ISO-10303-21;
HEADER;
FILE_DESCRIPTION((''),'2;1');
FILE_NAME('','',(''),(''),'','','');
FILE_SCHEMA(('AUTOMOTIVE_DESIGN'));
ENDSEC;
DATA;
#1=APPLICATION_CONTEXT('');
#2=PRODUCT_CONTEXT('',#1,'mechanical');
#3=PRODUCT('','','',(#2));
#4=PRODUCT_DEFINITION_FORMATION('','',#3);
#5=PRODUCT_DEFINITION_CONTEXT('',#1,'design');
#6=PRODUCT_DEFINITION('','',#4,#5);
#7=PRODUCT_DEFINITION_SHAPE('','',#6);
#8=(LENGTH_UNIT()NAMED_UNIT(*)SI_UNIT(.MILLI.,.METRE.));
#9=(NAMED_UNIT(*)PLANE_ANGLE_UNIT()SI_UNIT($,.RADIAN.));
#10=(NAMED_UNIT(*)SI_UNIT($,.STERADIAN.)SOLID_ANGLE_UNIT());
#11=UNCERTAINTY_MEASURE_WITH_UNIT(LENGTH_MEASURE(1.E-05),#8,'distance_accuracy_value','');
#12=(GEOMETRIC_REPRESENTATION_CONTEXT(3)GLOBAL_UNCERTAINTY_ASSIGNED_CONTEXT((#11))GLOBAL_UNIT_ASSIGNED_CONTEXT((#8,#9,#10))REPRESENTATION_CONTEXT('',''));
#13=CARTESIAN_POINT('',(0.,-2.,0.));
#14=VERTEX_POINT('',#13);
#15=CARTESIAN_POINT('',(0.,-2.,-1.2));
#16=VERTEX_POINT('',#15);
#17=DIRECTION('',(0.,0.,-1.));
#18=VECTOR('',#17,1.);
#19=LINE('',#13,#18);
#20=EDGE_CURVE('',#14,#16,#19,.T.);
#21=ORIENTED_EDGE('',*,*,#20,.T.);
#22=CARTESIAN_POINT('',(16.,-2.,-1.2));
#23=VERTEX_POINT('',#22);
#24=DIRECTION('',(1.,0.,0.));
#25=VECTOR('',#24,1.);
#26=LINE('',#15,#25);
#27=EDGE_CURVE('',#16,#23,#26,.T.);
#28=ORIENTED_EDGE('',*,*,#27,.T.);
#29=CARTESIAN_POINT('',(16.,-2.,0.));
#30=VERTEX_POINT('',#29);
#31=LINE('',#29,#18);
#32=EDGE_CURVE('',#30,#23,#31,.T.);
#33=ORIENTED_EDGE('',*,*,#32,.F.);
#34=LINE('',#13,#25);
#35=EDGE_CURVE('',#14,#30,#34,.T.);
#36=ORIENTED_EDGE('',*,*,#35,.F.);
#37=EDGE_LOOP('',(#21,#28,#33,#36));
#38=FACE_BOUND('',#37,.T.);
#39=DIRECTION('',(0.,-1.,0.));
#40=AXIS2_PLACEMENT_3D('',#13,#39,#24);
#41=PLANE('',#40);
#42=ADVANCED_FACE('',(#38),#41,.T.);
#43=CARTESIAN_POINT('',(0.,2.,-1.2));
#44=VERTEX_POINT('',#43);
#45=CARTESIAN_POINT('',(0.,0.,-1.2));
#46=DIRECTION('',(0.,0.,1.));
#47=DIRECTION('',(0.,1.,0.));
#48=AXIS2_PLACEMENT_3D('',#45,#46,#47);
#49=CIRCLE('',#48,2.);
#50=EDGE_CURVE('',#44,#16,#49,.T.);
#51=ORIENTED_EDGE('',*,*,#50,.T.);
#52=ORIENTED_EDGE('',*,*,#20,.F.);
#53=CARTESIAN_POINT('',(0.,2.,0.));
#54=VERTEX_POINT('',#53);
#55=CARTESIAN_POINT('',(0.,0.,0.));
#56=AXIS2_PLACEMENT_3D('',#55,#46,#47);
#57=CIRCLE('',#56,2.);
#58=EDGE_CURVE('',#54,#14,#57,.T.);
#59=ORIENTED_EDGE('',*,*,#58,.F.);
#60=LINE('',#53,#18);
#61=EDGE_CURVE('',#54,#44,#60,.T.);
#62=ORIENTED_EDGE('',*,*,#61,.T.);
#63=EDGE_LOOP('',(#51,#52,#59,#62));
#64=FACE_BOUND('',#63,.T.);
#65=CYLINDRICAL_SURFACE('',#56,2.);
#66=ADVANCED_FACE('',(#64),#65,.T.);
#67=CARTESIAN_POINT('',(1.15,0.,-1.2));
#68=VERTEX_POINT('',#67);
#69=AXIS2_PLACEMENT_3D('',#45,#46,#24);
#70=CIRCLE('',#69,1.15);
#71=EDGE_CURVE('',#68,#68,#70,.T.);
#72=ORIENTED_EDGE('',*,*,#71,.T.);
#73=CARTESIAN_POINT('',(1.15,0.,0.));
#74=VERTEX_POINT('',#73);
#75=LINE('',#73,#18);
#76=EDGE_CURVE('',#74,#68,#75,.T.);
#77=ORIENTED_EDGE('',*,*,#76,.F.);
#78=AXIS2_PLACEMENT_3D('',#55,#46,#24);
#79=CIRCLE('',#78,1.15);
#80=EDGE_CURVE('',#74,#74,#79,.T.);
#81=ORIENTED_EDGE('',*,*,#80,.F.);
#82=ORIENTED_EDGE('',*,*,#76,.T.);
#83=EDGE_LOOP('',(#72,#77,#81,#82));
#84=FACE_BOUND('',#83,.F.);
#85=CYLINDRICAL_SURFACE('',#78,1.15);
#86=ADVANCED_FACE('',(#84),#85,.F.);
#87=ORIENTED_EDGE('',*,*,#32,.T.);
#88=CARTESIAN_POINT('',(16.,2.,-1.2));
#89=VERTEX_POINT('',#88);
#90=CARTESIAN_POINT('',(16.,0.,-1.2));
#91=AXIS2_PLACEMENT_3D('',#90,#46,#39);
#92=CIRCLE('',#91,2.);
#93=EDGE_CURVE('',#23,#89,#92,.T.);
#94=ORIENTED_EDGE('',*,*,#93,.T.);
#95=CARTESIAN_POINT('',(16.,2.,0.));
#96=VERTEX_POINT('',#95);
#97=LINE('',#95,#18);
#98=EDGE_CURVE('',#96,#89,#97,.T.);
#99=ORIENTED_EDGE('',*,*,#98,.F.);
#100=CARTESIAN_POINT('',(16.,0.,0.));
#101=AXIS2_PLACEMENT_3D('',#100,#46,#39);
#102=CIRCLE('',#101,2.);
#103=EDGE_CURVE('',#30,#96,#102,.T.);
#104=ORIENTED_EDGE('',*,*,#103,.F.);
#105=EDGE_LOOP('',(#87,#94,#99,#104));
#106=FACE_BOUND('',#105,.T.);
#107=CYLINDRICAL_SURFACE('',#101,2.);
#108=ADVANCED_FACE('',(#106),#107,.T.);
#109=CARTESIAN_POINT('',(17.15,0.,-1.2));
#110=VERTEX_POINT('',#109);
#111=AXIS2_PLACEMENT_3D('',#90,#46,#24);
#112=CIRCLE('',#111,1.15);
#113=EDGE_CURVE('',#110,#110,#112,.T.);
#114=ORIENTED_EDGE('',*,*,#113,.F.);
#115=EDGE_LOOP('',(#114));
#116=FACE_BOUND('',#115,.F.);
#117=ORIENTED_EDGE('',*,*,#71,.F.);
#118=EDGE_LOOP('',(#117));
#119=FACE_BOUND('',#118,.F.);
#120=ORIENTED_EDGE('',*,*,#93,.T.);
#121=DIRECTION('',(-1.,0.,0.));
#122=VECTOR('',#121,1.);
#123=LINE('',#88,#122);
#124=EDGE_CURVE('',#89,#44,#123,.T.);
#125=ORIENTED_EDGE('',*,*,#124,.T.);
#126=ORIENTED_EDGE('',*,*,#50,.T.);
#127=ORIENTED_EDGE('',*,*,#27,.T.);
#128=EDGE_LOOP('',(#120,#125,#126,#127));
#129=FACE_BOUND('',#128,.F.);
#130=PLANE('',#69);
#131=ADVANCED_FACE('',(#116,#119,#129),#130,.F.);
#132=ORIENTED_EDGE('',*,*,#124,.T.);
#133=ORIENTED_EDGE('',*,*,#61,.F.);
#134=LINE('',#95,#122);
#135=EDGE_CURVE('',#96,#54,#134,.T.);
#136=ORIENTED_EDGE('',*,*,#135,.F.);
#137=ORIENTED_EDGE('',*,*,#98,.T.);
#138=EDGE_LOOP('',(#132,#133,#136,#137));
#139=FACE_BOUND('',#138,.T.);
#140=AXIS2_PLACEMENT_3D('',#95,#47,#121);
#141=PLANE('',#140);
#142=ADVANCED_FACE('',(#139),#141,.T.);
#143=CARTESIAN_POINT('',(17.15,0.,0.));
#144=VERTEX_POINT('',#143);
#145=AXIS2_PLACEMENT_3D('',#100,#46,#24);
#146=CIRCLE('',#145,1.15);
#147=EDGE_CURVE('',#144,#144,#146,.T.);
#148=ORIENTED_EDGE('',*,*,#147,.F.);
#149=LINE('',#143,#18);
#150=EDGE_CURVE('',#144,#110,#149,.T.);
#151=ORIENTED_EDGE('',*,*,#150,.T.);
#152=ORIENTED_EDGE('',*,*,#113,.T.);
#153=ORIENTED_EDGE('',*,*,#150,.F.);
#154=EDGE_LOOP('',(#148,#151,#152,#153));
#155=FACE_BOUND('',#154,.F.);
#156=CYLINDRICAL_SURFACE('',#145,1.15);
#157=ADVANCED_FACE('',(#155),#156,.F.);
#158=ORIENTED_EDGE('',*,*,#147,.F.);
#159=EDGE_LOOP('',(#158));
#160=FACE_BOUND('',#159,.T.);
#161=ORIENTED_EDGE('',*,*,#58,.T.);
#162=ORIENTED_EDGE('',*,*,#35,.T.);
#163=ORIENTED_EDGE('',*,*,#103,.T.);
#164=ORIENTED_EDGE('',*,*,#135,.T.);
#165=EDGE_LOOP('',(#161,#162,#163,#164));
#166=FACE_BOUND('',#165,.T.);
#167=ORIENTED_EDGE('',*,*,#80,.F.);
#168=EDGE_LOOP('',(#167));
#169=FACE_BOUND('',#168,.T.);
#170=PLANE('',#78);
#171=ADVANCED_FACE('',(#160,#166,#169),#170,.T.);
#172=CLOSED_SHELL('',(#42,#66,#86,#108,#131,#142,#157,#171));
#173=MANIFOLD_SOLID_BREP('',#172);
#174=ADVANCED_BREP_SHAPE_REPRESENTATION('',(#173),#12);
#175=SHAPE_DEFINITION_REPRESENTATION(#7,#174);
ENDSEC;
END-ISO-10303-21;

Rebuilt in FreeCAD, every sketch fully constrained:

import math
import FreeCAD as App
import Part
import Sketcher
Q = App.Units.Quantity

doc = App.newDocument("Part")
body = doc.addObject("PartDesign::Body", "Body")

# Sketch on XY plane
sketch1 = doc.addObject("Sketcher::SketchObject", "Sketch")
body.addObject(sketch1)
sketch1.AttachmentSupport = (doc.XY_Plane, [""])
sketch1.MapMode = "FlatFace"
sketch1.addGeometry([
    Part.ArcOfCircle(Part.Circle(App.Vector(0, 0, 0), App.Vector(0, 0, 1), 2), math.radians(90), math.radians(270)),  # 0
    Part.LineSegment(App.Vector(0, -2, 0), App.Vector(16, -2, 0)),  # 1
    Part.ArcOfCircle(Part.Circle(App.Vector(16, 0, 0), App.Vector(0, 0, 1), 2), math.radians(-90), math.radians(90)),  # 2
    Part.LineSegment(App.Vector(16, 2, 0), App.Vector(0, 2, 0)),  # 3
    Part.Circle(App.Vector(0, 0, 0), App.Vector(0, 0, 1), 1.15),  # 4
    Part.Circle(App.Vector(16, 0, 0), App.Vector(0, 0, 1), 1.15),  # 5
], False)
sketch1.addConstraint([
    Sketcher.Constraint("Tangent", 0, 2, 1, 1),
    Sketcher.Constraint("Tangent", 1, 2, 2, 1),
    Sketcher.Constraint("Tangent", 2, 2, 3, 1),
    Sketcher.Constraint("Tangent", 3, 2, 0, 1),
    Sketcher.Constraint("Horizontal", 1),
    Sketcher.Constraint("Horizontal", 3),
    Sketcher.Constraint("Coincident", 0, 3, -1, 1),
    Sketcher.Constraint("Coincident", 4, 3, -1, 1),
    Sketcher.Constraint("Coincident", 5, 3, 2, 3),
    Sketcher.Constraint("Equal", 4, 5),
    Sketcher.Constraint("Radius", 0, Q("2 mm")),
    Sketcher.Constraint("Diameter", 4, Q("2.3 mm")),
    Sketcher.Constraint("DistanceX", 1, 1, 1, 2, Q("16 mm")),
])
pad1 = doc.addObject("PartDesign::Pad", "Pad")
body.addObject(pad1)
pad1.Profile = sketch1
pad1.Length = 1.2
pad1.Reversed = True

doc.recompute()
